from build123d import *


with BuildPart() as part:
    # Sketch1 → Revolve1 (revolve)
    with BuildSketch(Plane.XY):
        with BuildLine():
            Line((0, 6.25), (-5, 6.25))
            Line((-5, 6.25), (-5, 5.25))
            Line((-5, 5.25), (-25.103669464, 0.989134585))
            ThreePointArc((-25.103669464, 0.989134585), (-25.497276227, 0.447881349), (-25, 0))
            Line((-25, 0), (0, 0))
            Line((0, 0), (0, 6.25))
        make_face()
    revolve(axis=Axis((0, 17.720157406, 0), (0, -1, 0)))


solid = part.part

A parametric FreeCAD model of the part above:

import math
import FreeCAD as App
import Part
import Sketcher
from FreeCAD import Vector
Q = App.Units.Quantity

doc = App.newDocument("Part")
params = doc.addObject("Spreadsheet::Sheet", "Params")
for row, (alias, value) in enumerate([
    ("sketch1_radius", "0.5 mm"),
    ("sketch1_width", "5 mm"),
    ("sketch1_width2", "25 mm"),
    ("sketch1_height", "1 mm"),
    ("sketch1_height2", "6.25 mm"),
    ("revolution_angle", "360 deg"),
], start=1):
    params.set(f"A{row}", alias)
    params.set(f"B{row}", "=" + value)
    params.setAlias(f"B{row}", alias)

body = doc.addObject("PartDesign::Body", "Body")

# Sketch on XY plane
sketch1 = body.newObject("Sketcher::SketchObject", "Sketch")
sketch1.AttachmentSupport = (doc.getObject("XY_Plane"), [""])
sketch1.MapMode = "FlatFace"
sketch1.addGeometry([
    Part.LineSegment(Vector(0, 6.25, 0), Vector(-5, 6.25, 0)),  # 0
    Part.LineSegment(Vector(-5, 6.25, 0), Vector(-5, 5.25, 0)),  # 1
    Part.LineSegment(Vector(-5, 5.25, 0), Vector(-25.103669, 0.989135, 0)),  # 2
    Part.ArcOfCircle(Part.Circle(Vector(-25, 0.5, 0), Vector(0, 0, 1), 0.5), math.radians(101.966452), math.radians(270)),  # 3
    Part.LineSegment(Vector(-25, 0, 0), Vector(0, 0, 0)),  # 4
    Part.LineSegment(Vector(0, 0, 0), Vector(0, 6.25, 0)),  # 5
], False)
sketch1.addConstraint([
    Sketcher.Constraint("Coincident", 0, 2, 1, 1),
    Sketcher.Constraint("Coincident", 1, 2, 2, 1),
    Sketcher.Constraint("Tangent", 2, 2, 3, 1),
    Sketcher.Constraint("Tangent", 3, 2, 4, 1),
    Sketcher.Constraint("Coincident", 4, 2, 5, 1),
    Sketcher.Constraint("Coincident", 5, 2, 0, 1),
    Sketcher.Constraint("Horizontal", 0),
    Sketcher.Constraint("Vertical", 1),
    Sketcher.Constraint("Horizontal", 4),
    Sketcher.Constraint("Vertical", 5),
    Sketcher.Constraint("Coincident", 4, 2, -1, 1),
    Sketcher.Constraint("Radius", 3, Q("0.5 mm")),
    Sketcher.Constraint("DistanceX", 0, 2, 0, 1, Q("5 mm")),
    Sketcher.Constraint("DistanceX", 4, 1, 4, 2, Q("25 mm")),
    Sketcher.Constraint("DistanceY", 1, 2, 1, 1, Q("1 mm")),
    Sketcher.Constraint("DistanceY", 5, 1, 5, 2, Q("6.25 mm")),
])
sketch1.setExpression("Constraints[11]", "Params.sketch1_radius")
sketch1.setExpression("Constraints[12]", "Params.sketch1_width")
sketch1.setExpression("Constraints[13]", "Params.sketch1_width2")
sketch1.setExpression("Constraints[14]", "Params.sketch1_height")
sketch1.setExpression("Constraints[15]", "Params.sketch1_height2")
revolution = body.newObject("PartDesign::Revolution", "Revolution")
revolution.Profile = sketch1
revolution.ReferenceAxis = (sketch1, ["V_Axis"])
revolution.setExpression("Angle", "Params.revolution_angle")

doc.recompute()
